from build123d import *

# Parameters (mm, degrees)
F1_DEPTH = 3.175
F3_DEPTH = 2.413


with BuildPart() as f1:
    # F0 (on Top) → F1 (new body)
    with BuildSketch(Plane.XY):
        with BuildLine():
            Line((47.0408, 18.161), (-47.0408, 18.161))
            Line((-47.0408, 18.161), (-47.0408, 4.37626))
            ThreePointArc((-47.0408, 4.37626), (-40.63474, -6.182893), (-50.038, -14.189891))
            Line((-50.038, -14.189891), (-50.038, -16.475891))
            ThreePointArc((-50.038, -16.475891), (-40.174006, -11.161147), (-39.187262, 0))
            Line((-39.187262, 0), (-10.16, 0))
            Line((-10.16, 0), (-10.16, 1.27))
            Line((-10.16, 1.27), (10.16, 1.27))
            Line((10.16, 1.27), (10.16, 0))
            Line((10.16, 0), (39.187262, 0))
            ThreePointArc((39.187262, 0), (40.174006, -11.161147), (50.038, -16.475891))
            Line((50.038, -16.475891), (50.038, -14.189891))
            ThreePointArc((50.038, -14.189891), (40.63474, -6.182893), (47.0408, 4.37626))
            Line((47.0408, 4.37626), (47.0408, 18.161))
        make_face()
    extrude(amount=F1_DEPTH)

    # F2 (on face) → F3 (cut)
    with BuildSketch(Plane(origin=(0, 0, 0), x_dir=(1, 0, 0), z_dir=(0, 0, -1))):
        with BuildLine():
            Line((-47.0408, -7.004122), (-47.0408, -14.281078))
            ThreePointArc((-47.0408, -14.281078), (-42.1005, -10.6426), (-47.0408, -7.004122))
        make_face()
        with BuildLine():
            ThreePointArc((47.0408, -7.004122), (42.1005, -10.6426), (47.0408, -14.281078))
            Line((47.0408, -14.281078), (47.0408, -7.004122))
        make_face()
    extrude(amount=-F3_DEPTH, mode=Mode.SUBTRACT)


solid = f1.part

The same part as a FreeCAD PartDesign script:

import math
import FreeCAD as App
import Part
import Sketcher
Q = App.Units.Quantity

doc = App.newDocument("Part")
body = doc.addObject("PartDesign::Body", "Body")

sketch1 = doc.addObject("Sketcher::SketchObject", "Sketch")
body.addObject(sketch1)
sketch1.AttachmentSupport = (doc.XY_Plane, [""])
sketch1.MapMode = "FlatFace"
sketch1.addGeometry(Part.LineSegment(App.Vector(47, 18.2, 0), App.Vector(-47, 18.2, 0)), False)
sketch1.addGeometry(Part.LineSegment(App.Vector(-47, 18.2, 0), App.Vector(-47, 4.4, 0)), False)
sketch1.addGeometry(Part.ArcOfCircle(Part.Circle(App.Vector(-50, -4.7, 0), App.Vector(0, 0, 1), 9.5), math.radians(-90), math.radians(72)), False)
sketch1.addGeometry(Part.LineSegment(App.Vector(-50, -14.2, 0), App.Vector(-50, -16.5, 0)), False)
sketch1.addGeometry(Part.ArcOfCircle(Part.Circle(App.Vector(-50, -4.7, 0), App.Vector(0, 0, 1), 11.8), math.radians(-90), math.radians(23)), False)
sketch1.addGeometry(Part.LineSegment(App.Vector(-39.2, 0, 0), App.Vector(-10.2, 0, 0)), False)
sketch1.addGeometry(Part.LineSegment(App.Vector(-10.2, 0, 0), App.Vector(-10.2, 1.3, 0)), False)
sketch1.addGeometry(Part.LineSegment(App.Vector(-10.2, 1.3, 0), App.Vector(10.2, 1.3, 0)), False)
sketch1.addGeometry(Part.LineSegment(App.Vector(10.2, 1.3, 0), App.Vector(10.2, 0, 0)), False)
sketch1.addGeometry(Part.LineSegment(App.Vector(10.2, 0, 0), App.Vector(39.2, 0, 0)), False)
sketch1.addGeometry(Part.ArcOfCircle(Part.Circle(App.Vector(50, -4.7, 0), App.Vector(0, 0, 1), 11.8), math.radians(157), math.radians(270)), False)
sketch1.addGeometry(Part.LineSegment(App.Vector(50, -16.5, 0), App.Vector(50, -14.2, 0)), False)
sketch1.addGeometry(Part.ArcOfCircle(Part.Circle(App.Vector(50, -4.7, 0), App.Vector(0, 0, 1), 9.5), math.radians(108), math.radians(270)), False)
sketch1.addGeometry(Part.LineSegment(App.Vector(47, 4.4, 0), App.Vector(47, 18.2, 0)), False)
sketch1.addConstraint(Sketcher.Constraint("Coincident", 0, 2, 1, 1))
sketch1.addConstraint(Sketcher.Constraint("Coincident", 1, 2, 2, 2))
sketch1.addConstraint(Sketcher.Constraint("Coincident", 2, 1, 3, 1))
sketch1.addConstraint(Sketcher.Constraint("Coincident", 3, 2, 4, 1))
sketch1.addConstraint(Sketcher.Constraint("Coincident", 4, 2, 5, 1))
sketch1.addConstraint(Sketcher.Constraint("Coincident", 5, 2, 6, 1))
sketch1.addConstraint(Sketcher.Constraint("Coincident", 6, 2, 7, 1))
sketch1.addConstraint(Sketcher.Constraint("Coincident", 7, 2, 8, 1))
sketch1.addConstraint(Sketcher.Constraint("Coincident", 8, 2, 9, 1))
sketch1.addConstraint(Sketcher.Constraint("Coincident", 9, 2, 10, 1))
sketch1.addConstraint(Sketcher.Constraint("Coincident", 10, 2, 11, 1))
sketch1.addConstraint(Sketcher.Constraint("Coincident", 11, 2, 12, 2))
sketch1.addConstraint(Sketcher.Constraint("Coincident", 12, 1, 13, 1))
sketch1.addConstraint(Sketcher.Constraint("Coincident", 13, 2, 0, 1))
sketch1.addConstraint(Sketcher.Constraint("Horizontal", 0))
sketch1.addConstraint(Sketcher.Constraint("Vertical", 1))
sketch1.addConstraint(Sketcher.Constraint("Vertical", 3))
sketch1.addConstraint(Sketcher.Constraint("Horizontal", 5))
sketch1.addConstraint(Sketcher.Constraint("Vertical", 6))
sketch1.addConstraint(Sketcher.Constraint("Horizontal", 7))
sketch1.addConstraint(Sketcher.Constraint("Vertical", 8))
sketch1.addConstraint(Sketcher.Constraint("Horizontal", 9))
sketch1.addConstraint(Sketcher.Constraint("Vertical", 11))
sketch1.addConstraint(Sketcher.Constraint("Vertical", 13))
sketch1.addConstraint(Sketcher.Constraint("Coincident", 4, 3, 2, 3))
sketch1.addConstraint(Sketcher.Constraint("Coincident", 12, 3, 10, 3))
sketch1.addConstraint(Sketcher.Constraint("Equal", 4, 10))
sketch1.addConstraint(Sketcher.Constraint("Equal", 2, 12))
sketch1.addConstraint(Sketcher.Constraint("Symmetric", 5, 2, 8, 2, -1, 1))
sketch1.addConstraint(Sketcher.Constraint("Symmetric", 2, 3, 10, 3, -2))
sketch1.addConstraint(Sketcher.Constraint("PointOnObject", 4, 2, -1))
sketch1.addConstraint(Sketcher.Constraint("Horizontal", 1, 2, 12, 1))
sketch1.addConstraint(Sketcher.Constraint("Vertical", 4, 3, 2, 1))
sketch1.addConstraint(Sketcher.Constraint("Vertical", 12, 3, 10, 2))
sketch1.addConstraint(Sketcher.Constraint("DistanceX", 7, 1, 7, 2, Q("0.8 in")))
sketch1.addConstraint(Sketcher.Constraint("Radius", 2, Q("0.375 in")))
sketch1.addConstraint(Sketcher.Constraint("Radius", 4, Q("0.465 in")))
sketch1.addConstraint(Sketcher.Constraint("DistanceY", 6, 1, 6, 2, Q("0.05 in")))
sketch1.addConstraint(Sketcher.Constraint("DistanceX", 0, 2, 0, 1, Q("3.704 in")))
sketch1.addConstraint(Sketcher.Constraint("DistanceX", 2, 3, -1, 1, Q("1.97 in")))
sketch1.addConstraint(Sketcher.Constraint("DistanceY", -1, 1, 0, 2, Q("0.715 in")))
sketch1.addConstraint(Sketcher.Constraint("DistanceX", 5, 1, 5, 2, Q("29.027262 mm")))
pad1 = doc.addObject("PartDesign::Pad", "Pad")
body.addObject(pad1)
pad1.Profile = sketch1
pad1.Length = Q("0.125 in")

sketch2 = doc.addObject("Sketcher::SketchObject", "Sketch001")
body.addObject(sketch2)
sketch2.AttachmentSupport = (doc.XY_Plane, [""])
sketch2.MapMode = "FlatFace"
sketch2.addGeometry(Part.LineSegment(App.Vector(-47, 7, 0), App.Vector(-47, 14.3, 0)), False)
sketch2.addGeometry(Part.ArcOfCircle(Part.Circle(App.Vector(-45.9, 10.6, 0), App.Vector(0, 0, 1), 3.8), math.radians(-107), math.radians(107)), False)
sketch2.addGeometry(Part.ArcOfCircle(Part.Circle(App.Vector(45.9, 10.6, 0), App.Vector(0, 0, 1), 3.8), math.radians(73), math.radians(287)), False)
sketch2.addGeometry(Part.LineSegment(App.Vector(47, 14.3, 0), App.Vector(47, 7, 0)), False)
sketch2.addConstraint(Sketcher.Constraint("Coincident", 0, 1, 1, 1))
sketch2.addConstraint(Sketcher.Constraint("Coincident", 1, 2, 0, 2))
sketch2.addConstraint(Sketcher.Constraint("Coincident", 2, 1, 3, 1))
sketch2.addConstraint(Sketcher.Constraint("Coincident", 3, 2, 2, 2))
sketch2.addConstraint(Sketcher.Constraint("Vertical", 0))
sketch2.addConstraint(Sketcher.Constraint("Vertical", 3))
sketch2.addConstraint(Sketcher.Constraint("Equal", 1, 2))
sketch2.addConstraint(Sketcher.Constraint("Symmetric", 1, 3, 2, 3, -2))
sketch2.addConstraint(Sketcher.Constraint("Horizontal", 1, 2, 2, 1))
sketch2.addConstraint(Sketcher.Constraint("Radius", 1, Q("0.15 in")))
sketch2.addConstraint(Sketcher.Constraint("DistanceY", -1, 1, 1, 3, Q("0.419 in")))
sketch2.addConstraint(Sketcher.Constraint("DistanceX", 0, 1, -1, 1, Q("1.852 in")))
sketch2.addConstraint(Sketcher.Constraint("DistanceX", 1, 3, 2, 3, Q("3.615 in")))
pocket1 = doc.addObject("PartDesign::Pocket", "Pocket")
body.addObject(pocket1)
pocket1.Profile = sketch2
pocket1.Length = Q("0.095 in")
pocket1.Reversed = True

doc.recompute()
